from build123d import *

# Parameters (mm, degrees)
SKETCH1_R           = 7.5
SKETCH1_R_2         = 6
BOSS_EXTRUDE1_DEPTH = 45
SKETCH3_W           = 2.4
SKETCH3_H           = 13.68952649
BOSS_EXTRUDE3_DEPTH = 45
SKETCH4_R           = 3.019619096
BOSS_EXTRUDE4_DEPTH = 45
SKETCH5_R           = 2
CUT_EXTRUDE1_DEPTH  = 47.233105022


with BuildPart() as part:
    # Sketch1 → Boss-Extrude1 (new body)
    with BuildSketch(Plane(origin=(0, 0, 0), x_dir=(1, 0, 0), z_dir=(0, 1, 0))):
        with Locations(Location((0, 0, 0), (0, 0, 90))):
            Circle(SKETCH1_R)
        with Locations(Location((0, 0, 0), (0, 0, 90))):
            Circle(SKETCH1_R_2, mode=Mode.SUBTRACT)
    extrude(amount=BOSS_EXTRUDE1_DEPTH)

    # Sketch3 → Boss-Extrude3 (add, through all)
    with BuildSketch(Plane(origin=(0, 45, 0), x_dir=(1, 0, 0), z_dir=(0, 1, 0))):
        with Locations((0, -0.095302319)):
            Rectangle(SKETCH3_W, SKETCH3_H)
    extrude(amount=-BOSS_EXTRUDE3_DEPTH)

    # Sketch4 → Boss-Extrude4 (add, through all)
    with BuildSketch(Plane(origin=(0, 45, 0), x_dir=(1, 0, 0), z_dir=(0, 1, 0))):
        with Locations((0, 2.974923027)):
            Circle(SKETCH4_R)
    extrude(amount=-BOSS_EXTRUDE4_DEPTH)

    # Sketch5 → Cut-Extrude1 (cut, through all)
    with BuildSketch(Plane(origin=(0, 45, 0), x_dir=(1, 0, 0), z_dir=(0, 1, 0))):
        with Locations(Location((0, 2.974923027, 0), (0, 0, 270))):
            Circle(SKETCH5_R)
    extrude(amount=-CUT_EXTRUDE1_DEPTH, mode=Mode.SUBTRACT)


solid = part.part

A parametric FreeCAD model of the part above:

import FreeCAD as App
import Part
import Sketcher
from FreeCAD import Vector
Q = App.Units.Quantity

doc = App.newDocument("Part")
params = doc.addObject("Spreadsheet::Sheet", "Params")
for row, (alias, value) in enumerate([
    ("sketch1_diameter", "15 mm"),
    ("sketch1_diameter2", "12 mm"),
    ("pad1_length", "45 mm"),
    ("sketch2_width", "2.4 mm"),
    ("pad2_length", "45 mm"),
    ("sketch4_diameter", "4 mm"),
], start=1):
    params.set(f"A{row}", alias)
    params.set(f"B{row}", "=" + value)
    params.setAlias(f"B{row}", alias)

body = doc.addObject("PartDesign::Body", "Body")

# Sketch on XZ plane
sketch1 = doc.addObject("Sketcher::SketchObject", "Sketch")
body.addObject(sketch1)
sketch1.AttachmentSupport = (doc.XZ_Plane, [""])
sketch1.MapMode = "FlatFace"
sketch1.addGeometry(Part.Circle(Vector(0, 0, 0), Vector(0, 0, 1), 7.5), False)
sketch1.addGeometry(Part.Circle(Vector(0, 0, 0), Vector(0, 0, 1), 6), False)
sketch1.addConstraint(Sketcher.Constraint("Coincident", 0, 3, -1, 1))
sketch1.addConstraint(Sketcher.Constraint("Coincident", 1, 3, -1, 1))
sketch1.addConstraint(Sketcher.Constraint("Diameter", 0, Q("15 mm")))
sketch1.addConstraint(Sketcher.Constraint("Diameter", 1, Q("12 mm")))
sketch1.setExpression("Constraints[2]", "Params.sketch1_diameter")
sketch1.setExpression("Constraints[3]", "Params.sketch1_diameter2")
pad1 = doc.addObject("PartDesign::Pad", "Pad")
body.addObject(pad1)
pad1.Profile = sketch1
pad1.setExpression("Length", "Params.pad1_length")
pad1.Reversed = True

# Sketch on XZ plane
sketch2 = doc.addObject("Sketcher::SketchObject", "Sketch001")
body.addObject(sketch2)
sketch2.AttachmentSupport = (doc.XZ_Plane, [""])
sketch2.MapMode = "FlatFace"
sketch2.AttachmentOffset = App.Placement(Vector(0, 0, -45), App.Rotation())
sketch2.addGeometry(Part.LineSegment(Vector(-1.2, -6.749461, 0), Vector(-1.2, 6.940066, 0)), False)
sketch2.addGeometry(Part.LineSegment(Vector(-1.2, 6.940066, 0), Vector(1.2, 6.940066, 0)), False)
sketch2.addGeometry(Part.LineSegment(Vector(1.2, 6.940066, 0), Vector(1.2, -6.749461, 0)), False)
sketch2.addGeometry(Part.LineSegment(Vector(1.2, -6.749461, 0), Vector(-1.2, -6.749461, 0)), False)
sketch2.addConstraint(Sketcher.Constraint("Coincident", 0, 2, 1, 1))
sketch2.addConstraint(Sketcher.Constraint("Coincident", 1, 2, 2, 1))
sketch2.addConstraint(Sketcher.Constraint("Coincident", 2, 2, 3, 1))
sketch2.addConstraint(Sketcher.Constraint("Coincident", 3, 2, 0, 1))
sketch2.addConstraint(Sketcher.Constraint("Vertical", 0))
sketch2.addConstraint(Sketcher.Constraint("Horizontal", 1))
sketch2.addConstraint(Sketcher.Constraint("Vertical", 2))
sketch2.addConstraint(Sketcher.Constraint("Horizontal", 3))
sketch2.addConstraint(Sketcher.Constraint("DistanceX", 1, 1, 1, 2, Q("2.4 mm")))
sketch2.addConstraint(Sketcher.Constraint("DistanceX", 0, 2, -1, 1, Q("1.2 mm")))
sketch2.addConstraint(Sketcher.Constraint("DistanceY", 0, 1, 0, 2, Q("13.689526 mm")))
sketch2.addConstraint(Sketcher.Constraint("DistanceY", 2, 2, -1, 1, Q("6.749461 mm")))
sketch2.setExpression("Constraints[8]", "Params.sketch2_width")
pad2 = doc.addObject("PartDesign::Pad", "Pad001")
body.addObject(pad2)
pad2.Profile = sketch2
pad2.setExpression("Length", "Params.pad2_length")

# Sketch on XZ plane
sketch3 = doc.addObject("Sketcher::SketchObject", "Sketch002")
body.addObject(sketch3)
sketch3.AttachmentSupport = (doc.XZ_Plane, [""])
sketch3.MapMode = "FlatFace"
sketch3.AttachmentOffset = App.Placement(Vector(0, 0, -45), App.Rotation())
sketch3.addGeometry(Part.Circle(Vector(0, -2.974923, 0), Vector(0, 0, 1), 3.019619), False)
sketch3.addConstraint(Sketcher.Constraint("PointOnObject", 0, 3, -2))
sketch3.addConstraint(Sketcher.Constraint("Diameter", 0, Q("6.039238 mm")))
sketch3.addConstraint(Sketcher.Constraint("DistanceY", 0, 3, -1, 1, Q("2.974923 mm")))
pad3 = doc.addObject("PartDesign::Pad", "Pad002")
body.addObject(pad3)
pad3.Profile = sketch3
pad3.Type = "UpToLast"

# Sketch on XZ plane
sketch4 = doc.addObject("Sketcher::SketchObject", "Sketch003")
body.addObject(sketch4)
sketch4.AttachmentSupport = (doc.XZ_Plane, [""])
sketch4.MapMode = "FlatFace"
sketch4.AttachmentOffset = App.Placement(Vector(0, 0, -45), App.Rotation())
sketch4.addGeometry(Part.Circle(Vector(0, -2.974923, 0), Vector(0, 0, 1), 2), False)
sketch4.addConstraint(Sketcher.Constraint("PointOnObject", 0, 3, -2))
sketch4.addConstraint(Sketcher.Constraint("Diameter", 0, Q("4 mm")))
sketch4.addConstraint(Sketcher.Constraint("DistanceY", 0, 3, -1, 1, Q("2.974923 mm")))
sketch4.setExpression("Constraints[1]", "Params.sketch4_diameter")
pocket1 = doc.addObject("PartDesign::Pocket", "Pocket")
body.addObject(pocket1)
pocket1.Profile = sketch4
pocket1.Type = "ThroughAll"
pocket1.Reversed = True

doc.recompute()
